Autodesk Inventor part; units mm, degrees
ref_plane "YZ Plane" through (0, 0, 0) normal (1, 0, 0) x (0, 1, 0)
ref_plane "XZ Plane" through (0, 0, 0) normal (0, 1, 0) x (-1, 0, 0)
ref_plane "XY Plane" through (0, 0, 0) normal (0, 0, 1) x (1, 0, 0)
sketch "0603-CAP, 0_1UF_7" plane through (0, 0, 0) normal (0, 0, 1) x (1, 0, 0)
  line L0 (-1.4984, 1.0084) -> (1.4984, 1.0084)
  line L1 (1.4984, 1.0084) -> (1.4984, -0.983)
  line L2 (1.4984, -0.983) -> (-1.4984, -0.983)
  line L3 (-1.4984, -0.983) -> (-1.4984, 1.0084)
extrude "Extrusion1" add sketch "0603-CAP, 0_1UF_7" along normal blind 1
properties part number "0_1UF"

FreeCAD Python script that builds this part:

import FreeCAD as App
import Part
import Sketcher

doc = App.newDocument("Part")
body = doc.addObject("PartDesign::Body", "Body")

# Sketch on XY plane
sketch1 = body.newObject("Sketcher::SketchObject", "Sketch")
sketch1.AttachmentSupport = (doc.getObject("XY_Plane"), [""])
sketch1.MapMode = "FlatFace"
sketch1.addGeometry([
    Part.LineSegment(App.Vector(1.5, 1, 0), App.Vector(-1.5, 1, 0)),
    Part.LineSegment(App.Vector(-1.5, 1, 0), App.Vector(-1.5, -1, 0)),
    Part.LineSegment(App.Vector(-1.5, -1, 0), App.Vector(1.5, -1, 0)),
    Part.LineSegment(App.Vector(1.5, -1, 0), App.Vector(1.5, 1, 0)),
], False)
sketch1.addConstraint([
    Sketcher.Constraint("Coincident", 0, 2, 1, 1),
    Sketcher.Constraint("Coincident", 1, 2, 2, 1),
    Sketcher.Constraint("Coincident", 2, 2, 3, 1),
    Sketcher.Constraint("Coincident", 3, 2, 0, 1),
    Sketcher.Constraint("Horizontal", 0),
    Sketcher.Constraint("Vertical", 1),
    Sketcher.Constraint("Horizontal", 2),
    Sketcher.Constraint("Vertical", 3),
    Sketcher.Constraint("DistanceX", 0, 2, 0, 1, 2.9968),
    Sketcher.Constraint("DistanceY", 1, 2, 1, 1, 1.9914),
    Sketcher.Constraint("DistanceY", 1, 2, -1, 1, 0.983),
    Sketcher.Constraint("DistanceX", 0, 2, -1, 1, 1.4984),
])
pad1 = body.newObject("PartDesign::Pad", "Pad")
pad1.Profile = sketch1
pad1.Length = 1

doc.recompute()
